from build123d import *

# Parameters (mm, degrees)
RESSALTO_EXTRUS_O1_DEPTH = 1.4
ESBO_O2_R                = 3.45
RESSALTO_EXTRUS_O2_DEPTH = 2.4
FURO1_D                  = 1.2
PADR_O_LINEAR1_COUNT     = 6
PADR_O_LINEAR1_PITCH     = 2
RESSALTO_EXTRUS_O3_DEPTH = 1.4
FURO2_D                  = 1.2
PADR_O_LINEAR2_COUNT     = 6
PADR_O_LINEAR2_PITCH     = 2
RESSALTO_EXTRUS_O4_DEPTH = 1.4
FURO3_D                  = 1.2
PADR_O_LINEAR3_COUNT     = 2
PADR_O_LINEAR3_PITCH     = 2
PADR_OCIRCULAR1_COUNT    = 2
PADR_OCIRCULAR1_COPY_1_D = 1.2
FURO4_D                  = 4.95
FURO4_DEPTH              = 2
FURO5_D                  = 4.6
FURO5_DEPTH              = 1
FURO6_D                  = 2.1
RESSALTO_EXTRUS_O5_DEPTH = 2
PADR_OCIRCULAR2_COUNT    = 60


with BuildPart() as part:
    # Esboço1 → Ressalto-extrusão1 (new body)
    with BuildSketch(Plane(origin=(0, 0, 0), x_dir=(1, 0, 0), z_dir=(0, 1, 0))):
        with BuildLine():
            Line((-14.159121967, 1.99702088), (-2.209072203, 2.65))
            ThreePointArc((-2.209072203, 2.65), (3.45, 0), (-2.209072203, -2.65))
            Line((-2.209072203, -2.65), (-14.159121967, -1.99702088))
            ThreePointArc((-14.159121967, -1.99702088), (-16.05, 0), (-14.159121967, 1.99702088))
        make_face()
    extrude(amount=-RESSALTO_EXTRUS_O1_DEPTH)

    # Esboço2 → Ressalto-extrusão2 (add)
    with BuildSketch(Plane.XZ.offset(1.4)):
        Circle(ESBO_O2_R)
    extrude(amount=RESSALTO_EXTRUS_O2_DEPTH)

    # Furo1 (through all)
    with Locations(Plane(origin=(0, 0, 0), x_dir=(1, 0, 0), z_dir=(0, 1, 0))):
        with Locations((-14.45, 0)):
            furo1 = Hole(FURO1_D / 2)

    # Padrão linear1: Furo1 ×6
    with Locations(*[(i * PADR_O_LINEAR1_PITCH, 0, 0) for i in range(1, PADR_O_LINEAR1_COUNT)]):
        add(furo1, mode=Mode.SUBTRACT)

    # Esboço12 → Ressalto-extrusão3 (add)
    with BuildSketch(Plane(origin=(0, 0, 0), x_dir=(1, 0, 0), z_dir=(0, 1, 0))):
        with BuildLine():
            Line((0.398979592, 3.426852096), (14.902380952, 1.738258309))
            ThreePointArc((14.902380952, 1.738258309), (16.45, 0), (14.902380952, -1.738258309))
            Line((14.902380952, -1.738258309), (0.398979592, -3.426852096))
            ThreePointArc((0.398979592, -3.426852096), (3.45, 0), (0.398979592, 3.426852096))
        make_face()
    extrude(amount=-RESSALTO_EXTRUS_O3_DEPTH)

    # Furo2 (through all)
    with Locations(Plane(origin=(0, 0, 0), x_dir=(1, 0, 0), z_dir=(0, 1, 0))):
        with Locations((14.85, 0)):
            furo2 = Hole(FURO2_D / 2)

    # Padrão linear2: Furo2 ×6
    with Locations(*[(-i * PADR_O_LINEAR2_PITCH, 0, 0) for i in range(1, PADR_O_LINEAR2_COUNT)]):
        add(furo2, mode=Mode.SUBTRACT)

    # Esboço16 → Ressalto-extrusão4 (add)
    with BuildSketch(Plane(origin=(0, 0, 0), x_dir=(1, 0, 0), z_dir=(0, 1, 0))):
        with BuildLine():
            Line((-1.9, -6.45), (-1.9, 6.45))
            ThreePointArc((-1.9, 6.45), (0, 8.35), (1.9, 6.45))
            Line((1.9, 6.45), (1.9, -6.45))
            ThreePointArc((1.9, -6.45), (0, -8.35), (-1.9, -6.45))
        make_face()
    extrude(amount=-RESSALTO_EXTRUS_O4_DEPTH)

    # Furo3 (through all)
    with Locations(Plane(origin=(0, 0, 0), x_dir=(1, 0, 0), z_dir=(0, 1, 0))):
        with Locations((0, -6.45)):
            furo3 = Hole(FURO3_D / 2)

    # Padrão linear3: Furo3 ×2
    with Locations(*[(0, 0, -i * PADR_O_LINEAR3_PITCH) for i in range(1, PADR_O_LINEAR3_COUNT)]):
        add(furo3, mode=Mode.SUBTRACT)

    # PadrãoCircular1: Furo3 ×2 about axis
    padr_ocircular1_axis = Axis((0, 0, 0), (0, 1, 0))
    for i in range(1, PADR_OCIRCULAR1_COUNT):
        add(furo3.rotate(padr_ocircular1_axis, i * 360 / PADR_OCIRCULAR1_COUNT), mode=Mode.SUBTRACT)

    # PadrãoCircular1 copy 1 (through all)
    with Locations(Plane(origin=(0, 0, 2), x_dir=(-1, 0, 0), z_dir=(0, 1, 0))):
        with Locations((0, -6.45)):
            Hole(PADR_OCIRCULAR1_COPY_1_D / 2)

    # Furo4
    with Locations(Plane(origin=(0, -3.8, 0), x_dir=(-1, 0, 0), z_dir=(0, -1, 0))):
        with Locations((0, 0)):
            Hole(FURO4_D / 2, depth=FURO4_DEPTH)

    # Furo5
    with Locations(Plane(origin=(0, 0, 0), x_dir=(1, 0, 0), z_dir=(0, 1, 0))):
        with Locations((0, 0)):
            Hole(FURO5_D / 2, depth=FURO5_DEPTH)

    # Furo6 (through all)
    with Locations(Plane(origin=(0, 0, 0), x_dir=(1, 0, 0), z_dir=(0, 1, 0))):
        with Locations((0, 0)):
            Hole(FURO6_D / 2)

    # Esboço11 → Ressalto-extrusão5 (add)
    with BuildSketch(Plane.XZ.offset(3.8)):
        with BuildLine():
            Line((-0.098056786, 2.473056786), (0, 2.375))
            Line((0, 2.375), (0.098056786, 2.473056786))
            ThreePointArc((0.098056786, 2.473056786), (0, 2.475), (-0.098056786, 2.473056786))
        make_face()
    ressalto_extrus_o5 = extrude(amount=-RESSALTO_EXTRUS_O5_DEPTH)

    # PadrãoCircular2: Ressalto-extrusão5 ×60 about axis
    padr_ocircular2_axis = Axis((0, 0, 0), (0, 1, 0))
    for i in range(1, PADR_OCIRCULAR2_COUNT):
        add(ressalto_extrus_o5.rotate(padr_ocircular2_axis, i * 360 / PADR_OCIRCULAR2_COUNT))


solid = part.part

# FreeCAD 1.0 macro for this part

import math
import FreeCAD as App
import Part
import Sketcher

V = App.Vector

doc = App.newDocument("Part")
params = doc.addObject("Spreadsheet::Sheet", "Params")
for row, (alias, value) in enumerate([
    ("sketch1_radius", "2 mm"),
    ("sketch1_radius2", "3.45 mm"),
    ("pad1_length", "1.4 mm"),
    ("sketch2_diameter", "6.9 mm"),
    ("pad2_length", "2.4 mm"),
    ("sketch3_diameter", "1.2 mm"),
    ("hole_diameter", "1.2 mm"),
    ("linearpattern_pitch", "2 mm"),
    ("sketch4_radius", "3.45 mm"),
    ("sketch4_radius2", "1.75 mm"),
    ("pad3_length", "1.4 mm"),
    ("sketch5_diameter", "1.2 mm"),
    ("hole2_diameter", "1.2 mm"),
    ("linearpattern2_pitch", "2 mm"),
    ("sketch6_radius", "1.9 mm"),
    ("sketch6_height", "12.9 mm"),
    ("pad4_length", "1.4 mm"),
    ("sketch7_diameter", "1.2 mm"),
    ("hole3_diameter", "1.2 mm"),
    ("linearpattern3_pitch", "2 mm"),
    ("sketch8_diameter", "1.2 mm"),
    ("hole4_diameter", "1.2 mm"),
    ("sketch9_diameter", "4.95 mm"),
    ("hole5_diameter", "4.95 mm"),
    ("hole5_depth", "2 mm"),
    ("sketch10_diameter", "4.6 mm"),
    ("hole6_diameter", "4.6 mm"),
    ("hole6_depth", "1 mm"),
    ("sketch11_diameter", "2.1 mm"),
    ("hole7_diameter", "2.1 mm"),
    ("pad5_length", "2 mm"),
], start=1):
    params.set(f"A{row}", alias)
    params.set(f"B{row}", "=" + value)
    params.setAlias(f"B{row}", alias)

body = doc.addObject("PartDesign::Body", "Body")

# Sketch on XZ plane
sketch1 = body.newObject("Sketcher::SketchObject", "Sketch")
sketch1.AttachmentSupport = (doc.getObject("XZ_Plane"), [""])
sketch1.MapMode = "FlatFace"
sketch1.addGeometry([
    Part.LineSegment(V(-2.2, -2.6, 0), V(-14.2, -2, 0)),
    Part.ArcOfCircle(Part.Circle(V(-14.1, 0, 0), V(0, 0, 1), 2), math.radians(93), math.radians(267)),
    Part.LineSegment(V(-14.2, 2, 0), V(-2.2, 2.6, 0)),
    Part.ArcOfCircle(Part.Circle(V(0, 0, 0), V(0, 0, 1), 3.5), math.radians(-130), math.radians(130)),
], False)
sketch1.addConstraint([
    Sketcher.Constraint("Tangent", 0, 2, 1, 2),
    Sketcher.Constraint("Tangent", 1, 1, 2, 1),
    Sketcher.Constraint("Coincident", 2, 2, 3, 2),
    Sketcher.Constraint("Coincident", 3, 1, 0, 1),
    Sketcher.Constraint("Coincident", 3, 3, -1, 1),
    Sketcher.Constraint("Symmetric", 0, 2, 1, 1, -1),
    Sketcher.Constraint("Radius", 1, 2.0),
    Sketcher.Constraint("Radius", 3, 3.45),
    Sketcher.Constraint("DistanceY", 3, 1, 2, 2, 5.3),
    Sketcher.Constraint("DistanceX", 1, 3, -1, 1, 14.05),
])
sketch1.setExpression("Constraints[6]", "Params.sketch1_radius")
sketch1.setExpression("Constraints[7]", "Params.sketch1_radius2")
pad1 = body.newObject("PartDesign::Pad", "Pad")
pad1.Profile = sketch1
pad1.setExpression("Length", "Params.pad1_length")

# Sketch on XZ plane
sketch2 = body.newObject("Sketcher::SketchObject", "Sketch001")
sketch2.AttachmentSupport = (doc.getObject("XZ_Plane"), [""])
sketch2.MapMode = "FlatFace"
sketch2.AttachmentOffset = App.Placement(V(0, 0, 1.4), App.Rotation())
sketch2.addGeometry(Part.Circle(V(0, 0, 0), V(0, 0, 1), 3.5), False)
sketch2.addConstraint([
    Sketcher.Constraint("Coincident", 0, 3, -1, 1),
    Sketcher.Constraint("Diameter", 0, 6.9),
])
sketch2.setExpression("Constraints[1]", "Params.sketch2_diameter")
pad2 = body.newObject("PartDesign::Pad", "Pad001")
pad2.Profile = sketch2
pad2.setExpression("Length", "Params.pad2_length")

# Sketch on XZ plane
sketch3 = body.newObject("Sketcher::SketchObject", "Sketch002")
sketch3.AttachmentSupport = (doc.getObject("XZ_Plane"), [""])
sketch3.MapMode = "FlatFace"
sketch3.addGeometry(Part.Circle(V(-14.4, 0, 0), V(0, 0, 1), 0.6), False)
sketch3.addConstraint([
    Sketcher.Constraint("PointOnObject", 0, 3, -1),
    Sketcher.Constraint("Diameter", 0, 1.2),
    Sketcher.Constraint("DistanceX", 0, 3, -1, 1, 14.45),
])
sketch3.setExpression("Constraints[1]", "Params.sketch3_diameter")
doc.recompute()
hole = body.newObject("PartDesign::Hole", "Hole")
hole.Profile = sketch3
hole.ThreadType = "None"
hole.setExpression("Diameter", "Params.hole_diameter")
hole.DepthType = "ThroughAll"
hole.Reversed = True
doc.recompute()

linearpattern = body.newObject("PartDesign::LinearPattern", "LinearPattern")
linearpattern.Originals = [hole]
linearpattern.Direction = (doc.getObject("X_Axis"), [""])
linearpattern.Mode = "offset"
linearpattern.setExpression("Offset", "Params.linearpattern_pitch")
linearpattern.Occurrences = 6
body.Tip = linearpattern

# Sketch on XZ plane
sketch4 = body.newObject("Sketcher::SketchObject", "Sketch003")
sketch4.AttachmentSupport = (doc.getObject("XZ_Plane"), [""])
sketch4.MapMode = "FlatFace"
sketch4.addGeometry([
    Part.LineSegment(V(14.9, -1.7, 0), V(0.4, -3.4, 0)),
    Part.ArcOfCircle(Part.Circle(V(0, 0, 0), V(0, 0, 1), 3.5), math.radians(-83), math.radians(83)),
    Part.LineSegment(V(0.4, 3.4, 0), V(14.9, 1.7, 0)),
    Part.ArcOfCircle(Part.Circle(V(14.7, 0, 0), V(0, 0, 1), 1.8), math.radians(-83), math.radians(83)),
], False)
sketch4.addConstraint([
    Sketcher.Constraint("Tangent", 0, 2, 1, 1),
    Sketcher.Constraint("Tangent", 1, 2, 2, 1),
    Sketcher.Constraint("Tangent", 2, 2, 3, 2),
    Sketcher.Constraint("Tangent", 3, 1, 0, 1),
    Sketcher.Constraint("Coincident", 1, 3, -1, 1),
    Sketcher.Constraint("PointOnObject", 3, 3, -1),
    Sketcher.Constraint("Radius", 1, 3.45),
    Sketcher.Constraint("Radius", 3, 1.75),
    Sketcher.Constraint("DistanceX", -1, 1, 3, 3, 14.7),
])
sketch4.setExpression("Constraints[6]", "Params.sketch4_radius")
sketch4.setExpression("Constraints[7]", "Params.sketch4_radius2")
pad3 = body.newObject("PartDesign::Pad", "Pad002")
pad3.Profile = sketch4
pad3.setExpression("Length", "Params.pad3_length")

# Sketch on XZ plane
sketch5 = body.newObject("Sketcher::SketchObject", "Sketch004")
sketch5.AttachmentSupport = (doc.getObject("XZ_Plane"), [""])
sketch5.MapMode = "FlatFace"
sketch5.addGeometry(Part.Circle(V(14.8, 0, 0), V(0, 0, 1), 0.6), False)
sketch5.addConstraint([
    Sketcher.Constraint("PointOnObject", 0, 3, -1),
    Sketcher.Constraint("Diameter", 0, 1.2),
    Sketcher.Constraint("DistanceX", -1, 1, 0, 3, 14.85),
])
sketch5.setExpression("Constraints[1]", "Params.sketch5_diameter")
doc.recompute()
hole2 = body.newObject("PartDesign::Hole", "Hole001")
hole2.Profile = sketch5
hole2.ThreadType = "None"
hole2.setExpression("Diameter", "Params.hole2_diameter")
hole2.DepthType = "ThroughAll"
hole2.Reversed = True
doc.recompute()

linearpattern2 = body.newObject("PartDesign::LinearPattern", "LinearPattern001")
linearpattern2.Originals = [hole2]
linearpattern2.Direction = (doc.getObject("X_Axis"), [""])
linearpattern2.Mode = "offset"
linearpattern2.setExpression("Offset", "Params.linearpattern2_pitch")
linearpattern2.Occurrences = 6
linearpattern2.Reversed = True
body.Tip = linearpattern2

# Sketch on XZ plane
sketch6 = body.newObject("Sketcher::SketchObject", "Sketch005")
sketch6.AttachmentSupport = (doc.getObject("XZ_Plane"), [""])
sketch6.MapMode = "FlatFace"
sketch6.addGeometry([
    Part.LineSegment(V(-1.9, -6.5, 0), V(-1.9, 6.5, 0)),
    Part.ArcOfCircle(Part.Circle(V(0, 6.5, 0), V(0, 0, 1), 1.9), math.radians(0), math.radians(180)),
    Part.LineSegment(V(1.9, 6.5, 0), V(1.9, -6.5, 0)),
    Part.ArcOfCircle(Part.Circle(V(0, -6.5, 0), V(0, 0, 1), 1.9), math.radians(180), math.radians(360)),
], False)
sketch6.addConstraint([
    Sketcher.Constraint("Tangent", 0, 2, 1, 2),
    Sketcher.Constraint("Tangent", 1, 1, 2, 1),
    Sketcher.Constraint("Tangent", 2, 2, 3, 2),
    Sketcher.Constraint("Tangent", 3, 1, 0, 1),
    Sketcher.Constraint("Vertical", 0),
    Sketcher.Constraint("Vertical", 2),
    Sketcher.Constraint("Symmetric", 1, 3, 3, 3, -1, 1),
    Sketcher.Constraint("Radius", 1, 1.9),
    Sketcher.Constraint("DistanceY", 0, 1, 0, 2, 12.9),
])
sketch6.setExpression("Constraints[7]", "Params.sketch6_radius")
sketch6.setExpression("Constraints[8]", "Params.sketch6_height")
pad4 = body.newObject("PartDesign::Pad", "Pad003")
pad4.Profile = sketch6
pad4.setExpression("Length", "Params.pad4_length")

# Sketch on XZ plane
sketch7 = body.newObject("Sketcher::SketchObject", "Sketch006")
sketch7.AttachmentSupport = (doc.getObject("XZ_Plane"), [""])
sketch7.MapMode = "FlatFace"
sketch7.addGeometry(Part.Circle(V(0, 6.5, 0), V(0, 0, 1), 0.6), False)
sketch7.addConstraint([
    Sketcher.Constraint("PointOnObject", 0, 3, -2),
    Sketcher.Constraint("Diameter", 0, 1.2),
    Sketcher.Constraint("DistanceY", -1, 1, 0, 3, 6.45),
])
sketch7.setExpression("Constraints[1]", "Params.sketch7_diameter")
doc.recompute()
hole3 = body.newObject("PartDesign::Hole", "Hole002")
hole3.Profile = sketch7
hole3.ThreadType = "None"
hole3.setExpression("Diameter", "Params.hole3_diameter")
hole3.DepthType = "ThroughAll"
hole3.Reversed = True
doc.recompute()

linearpattern3 = body.newObject("PartDesign::LinearPattern", "LinearPattern002")
linearpattern3.Originals = [hole3]
linearpattern3.Direction = (doc.getObject("Z_Axis"), [""])
linearpattern3.Mode = "offset"
linearpattern3.setExpression("Offset", "Params.linearpattern3_pitch")
linearpattern3.Occurrences = 2
linearpattern3.Reversed = True
body.Tip = linearpattern3
doc.recompute()

polarpattern = body.newObject("PartDesign::PolarPattern", "PolarPattern")
polarpattern.Originals = [hole3]
polarpattern.Axis = (doc.getObject("Y_Axis"), [""])
polarpattern.Angle = 360
polarpattern.Occurrences = 2
body.Tip = polarpattern

# Sketch on XZ plane
sketch8 = body.newObject("Sketcher::SketchObject", "Sketch007")
sketch8.AttachmentSupport = (doc.getObject("XZ_Plane"), [""])
sketch8.MapMode = "FlatFace"
sketch8.addGeometry(Part.Circle(V(0, -4.5, 0), V(0, 0, 1), 0.6), False)
sketch8.addConstraint([
    Sketcher.Constraint("PointOnObject", 0, 3, -2),
    Sketcher.Constraint("Diameter", 0, 1.2),
    Sketcher.Constraint("DistanceY", 0, 3, -1, 1, 4.45),
])
sketch8.setExpression("Constraints[1]", "Params.sketch8_diameter")
doc.recompute()
hole4 = body.newObject("PartDesign::Hole", "Hole003")
hole4.Profile = sketch8
hole4.ThreadType = "None"
hole4.setExpression("Diameter", "Params.hole4_diameter")
hole4.DepthType = "ThroughAll"
hole4.Reversed = True

# Sketch on XZ plane
sketch9 = body.newObject("Sketcher::SketchObject", "Sketch008")
sketch9.AttachmentSupport = (doc.getObject("XZ_Plane"), [""])
sketch9.MapMode = "FlatFace"
sketch9.AttachmentOffset = App.Placement(V(0, 0, 3.8), App.Rotation())
sketch9.addGeometry(Part.Circle(V(0, 0, 0), V(0, 0, 1), 2.5), False)
sketch9.addConstraint([
    Sketcher.Constraint("Coincident", 0, 3, -1, 1),
    Sketcher.Constraint("Diameter", 0, 4.95),
])
sketch9.setExpression("Constraints[1]", "Params.sketch9_diameter")
doc.recompute()
hole5 = body.newObject("PartDesign::Hole", "Hole004")
hole5.Profile = sketch9
hole5.ThreadType = "None"
hole5.setExpression("Diameter", "Params.hole5_diameter")
hole5.DepthType = "Dimension"
hole5.setExpression("Depth", "Params.hole5_depth")
hole5.DrillPoint = "Flat"

# Sketch on XZ plane
sketch10 = body.newObject("Sketcher::SketchObject", "Sketch009")
sketch10.AttachmentSupport = (doc.getObject("XZ_Plane"), [""])
sketch10.MapMode = "FlatFace"
sketch10.addGeometry(Part.Circle(V(0, 0, 0), V(0, 0, 1), 2.3), False)
sketch10.addConstraint([
    Sketcher.Constraint("Coincident", 0, 3, -1, 1),
    Sketcher.Constraint("Diameter", 0, 4.6),
])
sketch10.setExpression("Constraints[1]", "Params.sketch10_diameter")
doc.recompute()
hole6 = body.newObject("PartDesign::Hole", "Hole005")
hole6.Profile = sketch10
hole6.ThreadType = "None"
hole6.setExpression("Diameter", "Params.hole6_diameter")
hole6.DepthType = "Dimension"
hole6.setExpression("Depth", "Params.hole6_depth")
hole6.DrillPoint = "Flat"
hole6.Reversed = True

# Sketch on XZ plane
sketch11 = body.newObject("Sketcher::SketchObject", "Sketch010")
sketch11.AttachmentSupport = (doc.getObject("XZ_Plane"), [""])
sketch11.MapMode = "FlatFace"
sketch11.addGeometry(Part.Circle(V(0, 0, 0), V(0, 0, 1), 1.1), False)
sketch11.addConstraint([
    Sketcher.Constraint("Coincident", 0, 3, -1, 1),
    Sketcher.Constraint("Diameter", 0, 2.1),
])
sketch11.setExpression("Constraints[1]", "Params.sketch11_diameter")
doc.recompute()
hole7 = body.newObject("PartDesign::Hole", "Hole006")
hole7.Profile = sketch11
hole7.ThreadType = "None"
hole7.setExpression("Diameter", "Params.hole7_diameter")
hole7.DepthType = "ThroughAll"
hole7.Reversed = True

# Sketch on XZ plane
sketch12 = body.newObject("Sketcher::SketchObject", "Sketch011")
sketch12.AttachmentSupport = (doc.getObject("XZ_Plane"), [""])
sketch12.MapMode = "FlatFace"
sketch12.AttachmentOffset = App.Placement(V(0, 0, 3.8), App.Rotation())
sketch12.addGeometry([
    Part.LineSegment(V(-0.1, 2.47, 0), V(0, 2.38, 0)),
    Part.LineSegment(V(0, 2.38, 0), V(0.1, 2.47, 0)),
    Part.ArcOfCircle(Part.Circle(V(0, 0, 0), V(0, 0, 1), 2.48), math.radians(87.73), math.radians(92.27)),
], False)
sketch12.addConstraint([
    Sketcher.Constraint("Coincident", 0, 2, 1, 1),
    Sketcher.Constraint("Coincident", 1, 2, 2, 1),
    Sketcher.Constraint("Coincident", 2, 2, 0, 1),
    Sketcher.Constraint("Coincident", 2, 3, -1, 1),
    Sketcher.Constraint("PointOnObject", 0, 2, -2),
    Sketcher.Constraint("Perpendicular", 0, 1),
    Sketcher.Constraint("Horizontal", 1, 2, 2, 2),
    Sketcher.Constraint("Radius", 2, 2.475),
    Sketcher.Constraint("DistanceY", -1, 1, 0, 2, 2.375),
])
pad5 = body.newObject("PartDesign::Pad", "Pad004")
pad5.Profile = sketch12
pad5.setExpression("Length", "Params.pad5_length")
pad5.Reversed = True
doc.recompute()

polarpattern2 = body.newObject("PartDesign::PolarPattern", "PolarPattern001")
polarpattern2.Originals = [pad5]
polarpattern2.Axis = (doc.getObject("Y_Axis"), [""])
polarpattern2.Angle = 360
polarpattern2.Occurrences = 60
body.Tip = polarpattern2

doc.recompute()
